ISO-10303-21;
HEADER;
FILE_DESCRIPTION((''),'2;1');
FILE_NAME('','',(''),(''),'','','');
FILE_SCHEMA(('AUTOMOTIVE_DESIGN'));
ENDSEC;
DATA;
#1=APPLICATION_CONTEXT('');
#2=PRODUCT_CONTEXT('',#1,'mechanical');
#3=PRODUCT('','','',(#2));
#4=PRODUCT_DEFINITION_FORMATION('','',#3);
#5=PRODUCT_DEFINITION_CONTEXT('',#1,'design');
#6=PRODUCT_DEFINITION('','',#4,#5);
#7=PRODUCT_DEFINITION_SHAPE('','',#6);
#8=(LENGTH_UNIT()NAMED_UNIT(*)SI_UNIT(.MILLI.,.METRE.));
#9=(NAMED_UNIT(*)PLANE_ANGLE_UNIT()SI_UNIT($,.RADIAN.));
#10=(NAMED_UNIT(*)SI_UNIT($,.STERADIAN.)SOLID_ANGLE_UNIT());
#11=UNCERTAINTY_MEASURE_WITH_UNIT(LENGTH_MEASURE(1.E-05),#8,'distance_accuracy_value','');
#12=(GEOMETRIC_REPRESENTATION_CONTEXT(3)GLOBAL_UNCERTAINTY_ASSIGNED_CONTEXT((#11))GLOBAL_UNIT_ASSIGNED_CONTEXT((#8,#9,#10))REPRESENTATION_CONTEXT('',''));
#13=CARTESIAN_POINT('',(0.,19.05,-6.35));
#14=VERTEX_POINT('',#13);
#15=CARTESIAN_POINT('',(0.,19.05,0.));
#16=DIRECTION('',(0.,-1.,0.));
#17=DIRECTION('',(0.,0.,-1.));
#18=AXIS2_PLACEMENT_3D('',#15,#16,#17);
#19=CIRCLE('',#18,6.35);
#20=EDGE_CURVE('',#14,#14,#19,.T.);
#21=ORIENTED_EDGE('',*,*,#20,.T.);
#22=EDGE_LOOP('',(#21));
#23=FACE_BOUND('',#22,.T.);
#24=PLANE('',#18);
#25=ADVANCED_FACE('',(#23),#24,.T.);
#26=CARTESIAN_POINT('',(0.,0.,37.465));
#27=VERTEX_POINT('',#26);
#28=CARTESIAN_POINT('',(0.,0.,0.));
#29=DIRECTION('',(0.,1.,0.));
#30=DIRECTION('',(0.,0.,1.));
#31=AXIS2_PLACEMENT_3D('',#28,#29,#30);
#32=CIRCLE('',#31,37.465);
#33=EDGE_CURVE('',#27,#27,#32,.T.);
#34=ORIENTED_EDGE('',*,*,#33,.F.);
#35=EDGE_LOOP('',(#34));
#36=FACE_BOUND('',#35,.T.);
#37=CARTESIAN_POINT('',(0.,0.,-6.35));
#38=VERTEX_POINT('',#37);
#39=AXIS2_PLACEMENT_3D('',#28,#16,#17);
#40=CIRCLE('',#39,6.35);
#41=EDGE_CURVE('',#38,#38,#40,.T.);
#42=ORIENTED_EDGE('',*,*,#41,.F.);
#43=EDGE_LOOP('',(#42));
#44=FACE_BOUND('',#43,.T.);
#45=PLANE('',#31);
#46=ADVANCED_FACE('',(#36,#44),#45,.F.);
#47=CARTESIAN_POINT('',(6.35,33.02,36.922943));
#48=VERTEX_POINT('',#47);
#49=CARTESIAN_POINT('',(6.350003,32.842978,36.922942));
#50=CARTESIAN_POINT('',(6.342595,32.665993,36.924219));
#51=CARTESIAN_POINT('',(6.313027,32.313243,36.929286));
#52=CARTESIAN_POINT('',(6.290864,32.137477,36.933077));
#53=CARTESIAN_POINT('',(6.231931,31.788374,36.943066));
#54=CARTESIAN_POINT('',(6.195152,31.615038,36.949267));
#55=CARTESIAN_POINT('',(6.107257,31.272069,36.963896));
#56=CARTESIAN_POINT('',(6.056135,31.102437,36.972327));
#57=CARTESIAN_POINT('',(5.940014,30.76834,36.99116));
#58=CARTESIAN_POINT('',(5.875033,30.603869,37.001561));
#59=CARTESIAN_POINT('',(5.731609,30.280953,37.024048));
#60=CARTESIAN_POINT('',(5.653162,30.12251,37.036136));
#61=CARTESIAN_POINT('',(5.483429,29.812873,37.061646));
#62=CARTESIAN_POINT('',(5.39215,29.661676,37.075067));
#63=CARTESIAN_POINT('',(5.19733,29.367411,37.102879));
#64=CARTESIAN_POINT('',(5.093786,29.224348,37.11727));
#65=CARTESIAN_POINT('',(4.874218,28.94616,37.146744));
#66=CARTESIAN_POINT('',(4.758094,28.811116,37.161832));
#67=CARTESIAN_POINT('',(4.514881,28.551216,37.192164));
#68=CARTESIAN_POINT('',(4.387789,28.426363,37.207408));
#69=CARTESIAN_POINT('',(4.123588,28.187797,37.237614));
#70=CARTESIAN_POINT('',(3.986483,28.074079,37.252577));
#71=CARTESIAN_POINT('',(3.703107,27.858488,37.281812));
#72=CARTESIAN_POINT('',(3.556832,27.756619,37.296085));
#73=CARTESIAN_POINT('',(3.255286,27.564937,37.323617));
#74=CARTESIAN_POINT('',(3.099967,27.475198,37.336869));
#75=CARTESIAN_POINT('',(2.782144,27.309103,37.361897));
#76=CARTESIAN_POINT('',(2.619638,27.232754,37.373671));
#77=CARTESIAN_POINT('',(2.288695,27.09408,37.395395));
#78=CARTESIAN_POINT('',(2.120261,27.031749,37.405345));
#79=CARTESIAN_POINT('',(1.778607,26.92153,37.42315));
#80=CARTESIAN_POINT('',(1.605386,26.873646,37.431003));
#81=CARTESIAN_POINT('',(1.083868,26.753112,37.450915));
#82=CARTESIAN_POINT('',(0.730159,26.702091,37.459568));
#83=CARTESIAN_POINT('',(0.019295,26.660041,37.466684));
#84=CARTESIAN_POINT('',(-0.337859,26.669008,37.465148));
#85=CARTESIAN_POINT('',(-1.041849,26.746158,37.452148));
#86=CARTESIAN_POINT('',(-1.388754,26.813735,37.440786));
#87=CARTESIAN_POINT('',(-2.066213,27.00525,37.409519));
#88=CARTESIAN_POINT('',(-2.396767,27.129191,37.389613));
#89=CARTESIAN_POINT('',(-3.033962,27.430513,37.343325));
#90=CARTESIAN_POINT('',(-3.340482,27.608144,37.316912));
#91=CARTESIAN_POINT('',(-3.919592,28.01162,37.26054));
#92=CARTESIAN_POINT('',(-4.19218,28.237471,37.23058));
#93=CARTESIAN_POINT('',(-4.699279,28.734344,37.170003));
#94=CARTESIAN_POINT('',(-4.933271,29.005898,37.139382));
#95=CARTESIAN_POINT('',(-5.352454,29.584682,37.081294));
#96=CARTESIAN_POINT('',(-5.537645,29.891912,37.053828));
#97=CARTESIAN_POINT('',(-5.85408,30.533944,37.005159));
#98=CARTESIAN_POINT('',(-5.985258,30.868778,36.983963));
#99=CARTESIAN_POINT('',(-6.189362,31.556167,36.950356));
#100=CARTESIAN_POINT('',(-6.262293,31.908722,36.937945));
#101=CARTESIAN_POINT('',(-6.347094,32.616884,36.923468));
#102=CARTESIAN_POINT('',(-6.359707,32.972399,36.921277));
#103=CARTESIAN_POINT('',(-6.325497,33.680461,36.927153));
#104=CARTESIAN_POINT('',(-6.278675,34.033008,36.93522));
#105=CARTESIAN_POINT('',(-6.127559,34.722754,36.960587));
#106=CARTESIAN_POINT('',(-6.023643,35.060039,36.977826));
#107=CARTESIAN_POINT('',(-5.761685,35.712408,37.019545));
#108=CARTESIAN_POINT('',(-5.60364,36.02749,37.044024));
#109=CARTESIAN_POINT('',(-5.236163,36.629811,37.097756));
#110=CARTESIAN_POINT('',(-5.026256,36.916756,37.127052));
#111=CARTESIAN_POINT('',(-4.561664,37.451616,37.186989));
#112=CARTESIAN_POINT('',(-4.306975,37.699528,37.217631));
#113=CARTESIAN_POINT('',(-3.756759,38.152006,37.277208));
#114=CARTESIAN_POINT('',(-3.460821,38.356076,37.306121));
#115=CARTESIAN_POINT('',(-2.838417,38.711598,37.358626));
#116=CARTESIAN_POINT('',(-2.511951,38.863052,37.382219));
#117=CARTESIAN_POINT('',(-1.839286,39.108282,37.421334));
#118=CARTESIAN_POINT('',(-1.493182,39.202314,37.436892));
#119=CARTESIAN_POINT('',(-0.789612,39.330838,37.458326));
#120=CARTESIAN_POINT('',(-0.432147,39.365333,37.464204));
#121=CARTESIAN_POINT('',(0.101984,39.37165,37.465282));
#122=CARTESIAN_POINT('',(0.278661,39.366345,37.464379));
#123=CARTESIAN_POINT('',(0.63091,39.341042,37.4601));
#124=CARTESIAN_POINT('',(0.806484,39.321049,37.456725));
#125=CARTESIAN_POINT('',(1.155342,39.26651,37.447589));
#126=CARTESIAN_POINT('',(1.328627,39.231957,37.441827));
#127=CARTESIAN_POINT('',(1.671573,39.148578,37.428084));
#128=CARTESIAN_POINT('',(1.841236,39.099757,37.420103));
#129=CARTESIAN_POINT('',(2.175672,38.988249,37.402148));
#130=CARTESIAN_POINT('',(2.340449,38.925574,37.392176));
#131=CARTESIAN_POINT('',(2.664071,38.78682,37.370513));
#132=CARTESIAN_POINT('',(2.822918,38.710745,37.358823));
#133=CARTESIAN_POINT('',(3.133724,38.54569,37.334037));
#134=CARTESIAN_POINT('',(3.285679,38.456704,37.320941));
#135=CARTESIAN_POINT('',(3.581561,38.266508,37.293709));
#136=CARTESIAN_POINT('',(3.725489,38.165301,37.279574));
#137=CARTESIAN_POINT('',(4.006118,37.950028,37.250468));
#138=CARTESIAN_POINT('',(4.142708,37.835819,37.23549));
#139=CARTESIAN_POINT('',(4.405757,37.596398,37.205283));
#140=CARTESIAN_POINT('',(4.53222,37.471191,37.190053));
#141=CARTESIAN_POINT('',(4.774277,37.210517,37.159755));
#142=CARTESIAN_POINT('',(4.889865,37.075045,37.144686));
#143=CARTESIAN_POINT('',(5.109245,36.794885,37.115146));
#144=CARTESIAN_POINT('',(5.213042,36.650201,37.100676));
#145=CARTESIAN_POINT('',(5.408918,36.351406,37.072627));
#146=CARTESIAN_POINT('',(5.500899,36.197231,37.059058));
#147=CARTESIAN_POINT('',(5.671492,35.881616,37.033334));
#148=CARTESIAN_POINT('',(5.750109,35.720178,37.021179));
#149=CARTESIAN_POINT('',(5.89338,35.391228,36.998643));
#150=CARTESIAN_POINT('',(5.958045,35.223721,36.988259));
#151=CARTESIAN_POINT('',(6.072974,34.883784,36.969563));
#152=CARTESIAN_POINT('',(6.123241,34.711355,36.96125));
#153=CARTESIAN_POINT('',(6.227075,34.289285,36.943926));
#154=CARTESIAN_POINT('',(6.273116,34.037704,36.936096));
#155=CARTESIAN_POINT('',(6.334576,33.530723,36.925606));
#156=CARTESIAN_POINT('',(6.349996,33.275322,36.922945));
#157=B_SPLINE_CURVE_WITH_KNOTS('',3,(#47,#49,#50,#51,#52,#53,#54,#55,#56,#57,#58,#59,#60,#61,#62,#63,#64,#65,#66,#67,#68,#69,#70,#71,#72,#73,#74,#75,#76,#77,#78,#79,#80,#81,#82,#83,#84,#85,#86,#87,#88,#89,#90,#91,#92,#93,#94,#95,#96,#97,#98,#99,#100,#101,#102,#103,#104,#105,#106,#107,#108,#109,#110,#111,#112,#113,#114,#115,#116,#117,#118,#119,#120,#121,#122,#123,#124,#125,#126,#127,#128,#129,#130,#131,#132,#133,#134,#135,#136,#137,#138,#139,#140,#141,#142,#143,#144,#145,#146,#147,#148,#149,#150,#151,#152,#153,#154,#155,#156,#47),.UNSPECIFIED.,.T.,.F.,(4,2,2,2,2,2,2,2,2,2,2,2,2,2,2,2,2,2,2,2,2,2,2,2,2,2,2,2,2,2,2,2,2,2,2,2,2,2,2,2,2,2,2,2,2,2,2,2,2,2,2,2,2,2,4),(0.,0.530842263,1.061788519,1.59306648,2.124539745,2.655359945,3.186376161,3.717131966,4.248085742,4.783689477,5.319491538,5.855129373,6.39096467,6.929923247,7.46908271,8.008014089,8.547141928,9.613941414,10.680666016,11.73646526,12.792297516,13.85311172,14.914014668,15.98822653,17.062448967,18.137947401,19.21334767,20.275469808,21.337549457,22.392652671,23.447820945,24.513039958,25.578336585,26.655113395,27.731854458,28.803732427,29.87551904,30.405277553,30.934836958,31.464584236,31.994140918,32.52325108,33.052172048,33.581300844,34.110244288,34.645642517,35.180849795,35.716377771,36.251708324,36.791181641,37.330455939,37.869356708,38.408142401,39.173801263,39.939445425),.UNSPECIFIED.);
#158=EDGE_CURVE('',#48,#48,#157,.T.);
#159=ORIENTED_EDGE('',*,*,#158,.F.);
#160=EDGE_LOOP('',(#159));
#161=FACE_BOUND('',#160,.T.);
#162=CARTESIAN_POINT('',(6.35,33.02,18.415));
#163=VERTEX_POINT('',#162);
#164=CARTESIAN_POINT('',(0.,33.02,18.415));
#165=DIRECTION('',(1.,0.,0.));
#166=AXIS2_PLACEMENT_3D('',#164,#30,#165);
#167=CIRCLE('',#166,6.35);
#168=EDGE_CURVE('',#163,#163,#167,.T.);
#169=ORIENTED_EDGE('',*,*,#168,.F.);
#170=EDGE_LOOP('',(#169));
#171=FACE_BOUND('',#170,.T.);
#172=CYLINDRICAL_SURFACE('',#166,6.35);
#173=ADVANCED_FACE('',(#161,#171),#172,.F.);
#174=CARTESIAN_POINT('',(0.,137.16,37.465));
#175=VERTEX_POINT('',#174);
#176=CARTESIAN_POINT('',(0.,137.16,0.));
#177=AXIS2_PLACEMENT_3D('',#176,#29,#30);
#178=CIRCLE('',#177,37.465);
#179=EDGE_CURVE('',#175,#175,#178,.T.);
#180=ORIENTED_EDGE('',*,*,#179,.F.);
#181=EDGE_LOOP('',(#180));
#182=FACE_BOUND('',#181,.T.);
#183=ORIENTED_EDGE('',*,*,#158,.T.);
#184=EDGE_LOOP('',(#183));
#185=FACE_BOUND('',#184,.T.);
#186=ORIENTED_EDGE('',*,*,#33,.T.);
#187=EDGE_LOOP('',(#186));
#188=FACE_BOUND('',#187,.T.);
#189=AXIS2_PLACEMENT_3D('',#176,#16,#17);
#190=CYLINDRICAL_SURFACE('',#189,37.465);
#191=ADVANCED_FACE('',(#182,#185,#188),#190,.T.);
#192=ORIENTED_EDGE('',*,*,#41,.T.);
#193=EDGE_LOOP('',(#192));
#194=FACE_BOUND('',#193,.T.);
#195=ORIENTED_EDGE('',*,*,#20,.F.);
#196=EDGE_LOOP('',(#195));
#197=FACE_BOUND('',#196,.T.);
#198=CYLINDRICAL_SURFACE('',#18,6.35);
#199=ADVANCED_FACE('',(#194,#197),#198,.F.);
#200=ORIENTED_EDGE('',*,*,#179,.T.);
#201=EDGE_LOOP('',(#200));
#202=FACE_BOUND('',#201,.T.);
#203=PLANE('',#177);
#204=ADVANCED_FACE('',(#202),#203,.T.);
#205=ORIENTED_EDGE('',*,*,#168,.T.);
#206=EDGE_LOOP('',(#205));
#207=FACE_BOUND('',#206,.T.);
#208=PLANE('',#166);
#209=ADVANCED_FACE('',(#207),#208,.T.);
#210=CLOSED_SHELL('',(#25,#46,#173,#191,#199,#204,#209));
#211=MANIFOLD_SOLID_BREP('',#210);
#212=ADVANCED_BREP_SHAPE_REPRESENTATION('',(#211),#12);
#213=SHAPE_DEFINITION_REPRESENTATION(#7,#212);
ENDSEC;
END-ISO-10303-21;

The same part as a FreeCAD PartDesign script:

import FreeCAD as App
import Part
import Sketcher
Q = App.Units.Quantity

doc = App.newDocument("Part")
body = doc.addObject("PartDesign::Body", "Body")

sketch1 = body.newObject("Sketcher::SketchObject", "Sketch")
sketch1.AttachmentSupport = (doc.getObject("XZ_Plane"), [""])
sketch1.MapMode = "FlatFace"
sketch1.addGeometry(Part.Circle(App.Vector(0, 0, 0), App.Vector(0, 0, 1), 37), False)
sketch1.addConstraint([
    Sketcher.Constraint("Coincident", 0, 3, -1, 1),
    Sketcher.Constraint("Diameter", 0, Q("2.95 in")),
])
pad1 = body.newObject("PartDesign::Pad", "Pad")
pad1.Profile = sketch1
pad1.Length = Q("5.4 in")
pad1.Reversed = True

sketch2 = body.newObject("Sketcher::SketchObject", "Sketch001")
sketch2.AttachmentSupport = (doc.getObject("XY_Plane"), [""])
sketch2.MapMode = "FlatFace"
sketch2.AttachmentOffset = App.Placement(App.Vector(0, 0, 1.475 * 25.4), App.Rotation())
sketch2.addGeometry(Part.Circle(App.Vector(0, 33, 0), App.Vector(0, 0, 1), 6), False)
sketch2.addConstraint([
    Sketcher.Constraint("PointOnObject", 0, 3, -2),
    Sketcher.Constraint("Diameter", 0, Q("0.5 in")),
    Sketcher.Constraint("DistanceY", -1, 1, 0, 3, Q("1.3 in")),
])
pocket1 = body.newObject("PartDesign::Pocket", "Pocket")
pocket1.Profile = sketch2
pocket1.Length = Q("0.75 in")

sketch3 = body.newObject("Sketcher::SketchObject", "Sketch002")
sketch3.AttachmentSupport = (doc.getObject("XZ_Plane"), [""])
sketch3.MapMode = "FlatFace"
sketch3.addGeometry(Part.Circle(App.Vector(0, 0, 0), App.Vector(0, 0, 1), 6), False)
sketch3.addConstraint([
    Sketcher.Constraint("Coincident", 0, 3, -1, 1),
    Sketcher.Constraint("Diameter", 0, Q("0.5 in")),
])
pocket2 = body.newObject("PartDesign::Pocket", "Pocket001")
pocket2.Profile = sketch3
pocket2.Length = Q("0.75 in")

doc.recompute()
